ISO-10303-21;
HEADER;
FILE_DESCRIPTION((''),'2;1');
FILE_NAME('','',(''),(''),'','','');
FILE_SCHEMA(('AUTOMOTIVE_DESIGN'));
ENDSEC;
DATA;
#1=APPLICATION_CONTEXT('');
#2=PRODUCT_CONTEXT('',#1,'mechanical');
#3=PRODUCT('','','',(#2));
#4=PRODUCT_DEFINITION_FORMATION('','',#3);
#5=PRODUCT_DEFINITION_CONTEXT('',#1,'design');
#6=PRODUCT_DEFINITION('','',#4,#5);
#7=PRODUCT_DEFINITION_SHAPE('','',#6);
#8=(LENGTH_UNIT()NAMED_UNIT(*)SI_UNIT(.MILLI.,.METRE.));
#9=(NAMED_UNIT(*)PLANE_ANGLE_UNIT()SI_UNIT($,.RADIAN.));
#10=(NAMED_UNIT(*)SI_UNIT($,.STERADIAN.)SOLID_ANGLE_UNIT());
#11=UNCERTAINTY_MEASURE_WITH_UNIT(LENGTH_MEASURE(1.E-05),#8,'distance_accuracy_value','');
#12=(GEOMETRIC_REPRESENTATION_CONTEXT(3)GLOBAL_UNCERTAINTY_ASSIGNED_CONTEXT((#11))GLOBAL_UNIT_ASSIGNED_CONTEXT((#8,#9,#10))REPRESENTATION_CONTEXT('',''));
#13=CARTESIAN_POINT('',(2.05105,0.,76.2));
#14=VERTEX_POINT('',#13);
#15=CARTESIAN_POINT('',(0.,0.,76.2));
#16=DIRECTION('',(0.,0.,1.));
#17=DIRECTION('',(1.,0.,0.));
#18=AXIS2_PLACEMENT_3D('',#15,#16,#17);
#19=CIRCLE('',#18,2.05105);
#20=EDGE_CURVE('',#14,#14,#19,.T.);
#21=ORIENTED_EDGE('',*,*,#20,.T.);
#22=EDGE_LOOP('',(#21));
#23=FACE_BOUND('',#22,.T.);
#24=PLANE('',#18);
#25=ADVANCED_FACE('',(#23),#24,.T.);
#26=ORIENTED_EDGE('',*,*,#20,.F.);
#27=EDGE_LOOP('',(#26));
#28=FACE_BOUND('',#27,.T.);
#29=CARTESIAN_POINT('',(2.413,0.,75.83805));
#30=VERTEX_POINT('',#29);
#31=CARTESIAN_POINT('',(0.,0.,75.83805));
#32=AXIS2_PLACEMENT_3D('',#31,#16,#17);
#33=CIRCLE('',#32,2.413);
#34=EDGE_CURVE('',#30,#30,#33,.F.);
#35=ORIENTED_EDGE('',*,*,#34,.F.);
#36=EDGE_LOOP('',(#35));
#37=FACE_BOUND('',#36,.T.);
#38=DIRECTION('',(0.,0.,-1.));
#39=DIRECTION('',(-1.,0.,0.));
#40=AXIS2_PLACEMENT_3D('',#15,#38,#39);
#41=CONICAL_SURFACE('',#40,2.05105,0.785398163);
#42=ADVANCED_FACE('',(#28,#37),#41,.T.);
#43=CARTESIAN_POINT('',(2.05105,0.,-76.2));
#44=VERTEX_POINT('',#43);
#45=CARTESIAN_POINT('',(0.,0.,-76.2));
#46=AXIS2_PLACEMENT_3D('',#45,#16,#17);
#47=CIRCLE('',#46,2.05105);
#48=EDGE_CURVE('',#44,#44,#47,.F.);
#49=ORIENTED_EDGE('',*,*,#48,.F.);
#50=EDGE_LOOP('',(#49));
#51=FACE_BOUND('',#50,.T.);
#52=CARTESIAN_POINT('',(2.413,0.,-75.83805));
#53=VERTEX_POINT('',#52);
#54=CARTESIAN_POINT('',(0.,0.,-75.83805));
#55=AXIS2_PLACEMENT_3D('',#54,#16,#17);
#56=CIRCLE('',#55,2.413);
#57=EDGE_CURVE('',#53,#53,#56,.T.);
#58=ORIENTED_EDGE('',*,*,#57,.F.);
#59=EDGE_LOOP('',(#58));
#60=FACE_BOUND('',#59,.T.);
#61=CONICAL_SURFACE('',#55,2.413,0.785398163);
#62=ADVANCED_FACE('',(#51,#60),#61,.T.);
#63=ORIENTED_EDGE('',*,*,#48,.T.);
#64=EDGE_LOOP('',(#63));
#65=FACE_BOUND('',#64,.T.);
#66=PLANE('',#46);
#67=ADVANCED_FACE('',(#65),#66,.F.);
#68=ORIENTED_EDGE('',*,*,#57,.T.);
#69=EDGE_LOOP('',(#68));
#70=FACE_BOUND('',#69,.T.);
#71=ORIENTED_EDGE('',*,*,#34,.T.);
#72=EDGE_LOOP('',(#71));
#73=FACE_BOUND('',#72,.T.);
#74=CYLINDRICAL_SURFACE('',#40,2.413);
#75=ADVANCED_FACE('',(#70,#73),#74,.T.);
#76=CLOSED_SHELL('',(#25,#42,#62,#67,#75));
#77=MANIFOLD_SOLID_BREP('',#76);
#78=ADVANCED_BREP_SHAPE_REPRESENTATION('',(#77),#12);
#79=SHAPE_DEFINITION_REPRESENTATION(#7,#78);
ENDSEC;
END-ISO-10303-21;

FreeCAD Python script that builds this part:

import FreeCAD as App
import Part
import Sketcher
from FreeCAD import Vector
Q = App.Units.Quantity


def edges_at(feature, points):
    """Names of the edges that pass closest to the given points."""
    edges = feature.Shape.Edges
    near = lambda p: min(range(len(edges)), key=lambda i: edges[i].distToShape(Part.Vertex(*p))[0])
    return sorted({f"Edge{near(p) + 1}" for p in points})

doc = App.newDocument("Part")
body = doc.addObject("PartDesign::Body", "Body")

# Sketch on XY plane
sketch1 = body.newObject("Sketcher::SketchObject", "Sketch")
sketch1.AttachmentSupport = (doc.getObject("XY_Plane"), [""])
sketch1.MapMode = "FlatFace"
sketch1.addGeometry(Part.Circle(Vector(0, 0, 0), Vector(0, 0, 1), 2.4), False)
sketch1.addConstraint([
    Sketcher.Constraint("Coincident", 0, 3, -1, 1),
    Sketcher.Constraint("Diameter", 0, Q("0.19 in")),
])
pad1 = body.newObject("PartDesign::Pad", "Pad")
pad1.Profile = sketch1
pad1.Type = "TwoLengths"
pad1.Length = Q("3 in")
pad1.Length2 = Q("3 in")
doc.recompute()

chamfer = body.newObject("PartDesign::Chamfer", "Chamfer")
chamfer.Base = (pad1, edges_at(pad1, [(-2.413, 0, -76.2), (-2.413, 0, 76.2)]))
chamfer.Size = 0.36195

doc.recompute()
